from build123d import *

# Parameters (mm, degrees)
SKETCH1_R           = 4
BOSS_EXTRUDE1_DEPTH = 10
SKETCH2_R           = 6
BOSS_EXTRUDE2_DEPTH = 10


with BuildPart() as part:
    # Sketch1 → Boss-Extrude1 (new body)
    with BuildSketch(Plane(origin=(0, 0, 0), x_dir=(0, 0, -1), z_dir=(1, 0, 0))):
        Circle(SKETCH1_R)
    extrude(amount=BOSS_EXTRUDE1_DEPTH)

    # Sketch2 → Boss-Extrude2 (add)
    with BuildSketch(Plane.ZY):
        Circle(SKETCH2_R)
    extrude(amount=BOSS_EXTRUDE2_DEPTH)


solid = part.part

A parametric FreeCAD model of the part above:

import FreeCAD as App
import Part
import Sketcher

doc = App.newDocument("Part")
body = doc.addObject("PartDesign::Body", "Body")

# Sketch on YZ plane
sketch1 = body.newObject("Sketcher::SketchObject", "Sketch")
sketch1.AttachmentSupport = (doc.getObject("YZ_Plane"), [""])
sketch1.MapMode = "FlatFace"
sketch1.addGeometry(Part.Circle(App.Vector(0, 0, 0), App.Vector(0, 0, 1), 4), False)
sketch1.addConstraint([
    Sketcher.Constraint("Coincident", 0, 3, -1, 1),
    Sketcher.Constraint("Diameter", 0, 8.0),
])
pad1 = body.newObject("PartDesign::Pad", "Pad")
pad1.Profile = sketch1
pad1.Length = 10

# Sketch on YZ plane
sketch2 = body.newObject("Sketcher::SketchObject", "Sketch001")
sketch2.AttachmentSupport = (doc.getObject("YZ_Plane"), [""])
sketch2.MapMode = "FlatFace"
sketch2.addGeometry(Part.Circle(App.Vector(0, 0, 0), App.Vector(0, 0, 1), 6), False)
sketch2.addConstraint([
    Sketcher.Constraint("Coincident", 0, 3, -1, 1),
    Sketcher.Constraint("Diameter", 0, 12.0),
])
pad2 = body.newObject("PartDesign::Pad", "Pad001")
pad2.Profile = sketch2
pad2.Length = 10
pad2.Reversed = True

doc.recompute()
